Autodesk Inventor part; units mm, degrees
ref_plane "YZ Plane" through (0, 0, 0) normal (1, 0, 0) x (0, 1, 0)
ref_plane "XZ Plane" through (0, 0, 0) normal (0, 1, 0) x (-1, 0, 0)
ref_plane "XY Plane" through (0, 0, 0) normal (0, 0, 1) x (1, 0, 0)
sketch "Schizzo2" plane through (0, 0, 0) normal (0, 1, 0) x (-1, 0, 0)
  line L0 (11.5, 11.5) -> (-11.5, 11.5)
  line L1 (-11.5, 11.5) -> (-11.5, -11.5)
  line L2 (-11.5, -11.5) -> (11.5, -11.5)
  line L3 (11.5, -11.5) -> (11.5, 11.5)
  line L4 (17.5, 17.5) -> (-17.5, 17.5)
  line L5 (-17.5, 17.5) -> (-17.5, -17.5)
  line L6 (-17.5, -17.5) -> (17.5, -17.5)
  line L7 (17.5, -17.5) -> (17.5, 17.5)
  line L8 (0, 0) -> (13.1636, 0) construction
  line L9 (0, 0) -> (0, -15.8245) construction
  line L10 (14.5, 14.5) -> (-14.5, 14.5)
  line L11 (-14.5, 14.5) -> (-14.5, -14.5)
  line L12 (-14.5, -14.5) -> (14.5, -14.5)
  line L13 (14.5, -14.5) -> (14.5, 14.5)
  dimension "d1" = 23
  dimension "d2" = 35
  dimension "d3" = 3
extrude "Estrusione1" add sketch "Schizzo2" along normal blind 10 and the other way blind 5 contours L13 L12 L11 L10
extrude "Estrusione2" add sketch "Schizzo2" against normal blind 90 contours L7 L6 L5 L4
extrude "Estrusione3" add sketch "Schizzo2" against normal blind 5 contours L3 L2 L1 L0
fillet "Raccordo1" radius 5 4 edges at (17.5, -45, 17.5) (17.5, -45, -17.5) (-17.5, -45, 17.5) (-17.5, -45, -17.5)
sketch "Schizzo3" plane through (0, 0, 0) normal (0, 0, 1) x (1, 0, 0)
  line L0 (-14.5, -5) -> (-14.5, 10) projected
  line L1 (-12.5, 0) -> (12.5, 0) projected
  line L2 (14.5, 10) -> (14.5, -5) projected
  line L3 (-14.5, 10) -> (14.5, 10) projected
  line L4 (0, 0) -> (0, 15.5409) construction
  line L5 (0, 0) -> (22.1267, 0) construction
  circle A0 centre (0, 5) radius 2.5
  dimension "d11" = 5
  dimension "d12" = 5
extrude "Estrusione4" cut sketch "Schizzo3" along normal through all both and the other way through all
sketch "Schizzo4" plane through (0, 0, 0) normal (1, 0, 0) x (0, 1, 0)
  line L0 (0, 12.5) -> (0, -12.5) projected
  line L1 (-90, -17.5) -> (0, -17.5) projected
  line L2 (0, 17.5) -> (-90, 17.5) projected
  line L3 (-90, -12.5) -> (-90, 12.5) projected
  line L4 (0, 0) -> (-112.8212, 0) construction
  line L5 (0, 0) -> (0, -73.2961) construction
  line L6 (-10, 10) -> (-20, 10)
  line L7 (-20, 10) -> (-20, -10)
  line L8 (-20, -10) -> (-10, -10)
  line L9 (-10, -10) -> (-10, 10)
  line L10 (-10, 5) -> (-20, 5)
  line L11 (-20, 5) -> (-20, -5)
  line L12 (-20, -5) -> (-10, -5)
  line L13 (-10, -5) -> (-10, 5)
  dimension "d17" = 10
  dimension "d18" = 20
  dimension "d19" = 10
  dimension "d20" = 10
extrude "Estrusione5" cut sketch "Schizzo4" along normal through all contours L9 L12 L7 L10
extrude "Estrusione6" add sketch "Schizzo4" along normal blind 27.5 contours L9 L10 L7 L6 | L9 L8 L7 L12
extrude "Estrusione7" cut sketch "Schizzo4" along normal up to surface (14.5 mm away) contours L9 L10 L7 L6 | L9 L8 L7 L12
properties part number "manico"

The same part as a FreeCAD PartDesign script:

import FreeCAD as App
import Part
import Sketcher
from FreeCAD import Vector


def edges_at(feature, points):
    """Names of the edges that pass closest to the given points."""
    edges = feature.Shape.Edges
    near = lambda p: min(range(len(edges)), key=lambda i: edges[i].distToShape(Part.Vertex(*p))[0])
    return sorted({f"Edge{near(p) + 1}" for p in points})

doc = App.newDocument("Part")
body = doc.addObject("PartDesign::Body", "Body")

sketch1 = body.newObject("Sketcher::SketchObject", "Sketch")
sketch1.AttachmentSupport = (doc.getObject("XZ_Plane"), [""])
sketch1.MapMode = "FlatFace"
sketch1.addGeometry([
    Part.LineSegment(Vector(-14, -14, 0), Vector(-14, 14, 0)),
    Part.LineSegment(Vector(-14, 14, 0), Vector(14, 14, 0)),
    Part.LineSegment(Vector(14, 14, 0), Vector(14, -14, 0)),
    Part.LineSegment(Vector(14, -14, 0), Vector(-14, -14, 0)),
    Part.LineSegment(Vector(12, 12, 0), Vector(-12, 12, 0)),
    Part.LineSegment(Vector(-12, 12, 0), Vector(-12, -12, 0)),
    Part.LineSegment(Vector(-12, -12, 0), Vector(12, -12, 0)),
    Part.LineSegment(Vector(12, -12, 0), Vector(12, 12, 0)),
], False)
sketch1.addConstraint([
    Sketcher.Constraint("Coincident", 0, 2, 1, 1),
    Sketcher.Constraint("Coincident", 1, 2, 2, 1),
    Sketcher.Constraint("Coincident", 2, 2, 3, 1),
    Sketcher.Constraint("Coincident", 3, 2, 0, 1),
    Sketcher.Constraint("Coincident", 4, 2, 5, 1),
    Sketcher.Constraint("Coincident", 5, 2, 6, 1),
    Sketcher.Constraint("Coincident", 6, 2, 7, 1),
    Sketcher.Constraint("Coincident", 7, 2, 4, 1),
    Sketcher.Constraint("Vertical", 0),
    Sketcher.Constraint("Horizontal", 1),
    Sketcher.Constraint("Vertical", 2),
    Sketcher.Constraint("Horizontal", 3),
    Sketcher.Constraint("Horizontal", 4),
    Sketcher.Constraint("Vertical", 5),
    Sketcher.Constraint("Horizontal", 6),
    Sketcher.Constraint("Vertical", 7),
    Sketcher.Constraint("Symmetric", 0, 2, 2, 2, -1, 1),
    Sketcher.Constraint("Symmetric", 4, 2, 6, 2, -1, 1),
    Sketcher.Constraint("Equal", 3, 0),
    Sketcher.Constraint("Equal", 6, 5),
    Sketcher.Constraint("DistanceX", 4, 2, 4, 1, 23.0),
    Sketcher.Constraint("DistanceX", 0, 2, 4, 2, 3.0),
])
pad1 = body.newObject("PartDesign::Pad", "Pad")
pad1.Profile = sketch1
pad1.Type = "TwoLengths"
pad1.Length = 10
pad1.Length2 = 5
pad1.Reversed = True

sketch2 = body.newObject("Sketcher::SketchObject", "Sketch001")
sketch2.AttachmentSupport = (doc.getObject("XZ_Plane"), [""])
sketch2.MapMode = "FlatFace"
sketch2.addGeometry([
    Part.LineSegment(Vector(-18, -18, 0), Vector(-18, 18, 0)),
    Part.LineSegment(Vector(-18, 18, 0), Vector(18, 18, 0)),
    Part.LineSegment(Vector(18, 18, 0), Vector(18, -18, 0)),
    Part.LineSegment(Vector(18, -18, 0), Vector(-18, -18, 0)),
    Part.LineSegment(Vector(14, 14, 0), Vector(-14, 14, 0)),
    Part.LineSegment(Vector(-14, 14, 0), Vector(-14, -14, 0)),
    Part.LineSegment(Vector(-14, -14, 0), Vector(14, -14, 0)),
    Part.LineSegment(Vector(14, -14, 0), Vector(14, 14, 0)),
], False)
sketch2.addConstraint([
    Sketcher.Constraint("Coincident", 0, 2, 1, 1),
    Sketcher.Constraint("Coincident", 1, 2, 2, 1),
    Sketcher.Constraint("Coincident", 2, 2, 3, 1),
    Sketcher.Constraint("Coincident", 3, 2, 0, 1),
    Sketcher.Constraint("Coincident", 4, 2, 5, 1),
    Sketcher.Constraint("Coincident", 5, 2, 6, 1),
    Sketcher.Constraint("Coincident", 6, 2, 7, 1),
    Sketcher.Constraint("Coincident", 7, 2, 4, 1),
    Sketcher.Constraint("Vertical", 0),
    Sketcher.Constraint("Horizontal", 1),
    Sketcher.Constraint("Vertical", 2),
    Sketcher.Constraint("Horizontal", 3),
    Sketcher.Constraint("Horizontal", 4),
    Sketcher.Constraint("Vertical", 5),
    Sketcher.Constraint("Horizontal", 6),
    Sketcher.Constraint("Vertical", 7),
    Sketcher.Constraint("Symmetric", 0, 2, 2, 2, -1, 1),
    Sketcher.Constraint("Symmetric", 4, 2, 6, 2, -1, 1),
    Sketcher.Constraint("Equal", 3, 0),
    Sketcher.Constraint("Equal", 6, 5),
    Sketcher.Constraint("DistanceX", 1, 1, 1, 2, 35.0),
    Sketcher.Constraint("DistanceX", 0, 2, 4, 2, 3.0),
])
pad2 = body.newObject("PartDesign::Pad", "Pad001")
pad2.Profile = sketch2
pad2.Length = 90

sketch3 = body.newObject("Sketcher::SketchObject", "Sketch002")
sketch3.AttachmentSupport = (doc.getObject("XZ_Plane"), [""])
sketch3.MapMode = "FlatFace"
sketch3.addGeometry([
    Part.LineSegment(Vector(-12, -12, 0), Vector(-12, 12, 0)),
    Part.LineSegment(Vector(-12, 12, 0), Vector(12, 12, 0)),
    Part.LineSegment(Vector(12, 12, 0), Vector(12, -12, 0)),
    Part.LineSegment(Vector(12, -12, 0), Vector(-12, -12, 0)),
], False)
sketch3.addConstraint([
    Sketcher.Constraint("Coincident", 0, 2, 1, 1),
    Sketcher.Constraint("Coincident", 1, 2, 2, 1),
    Sketcher.Constraint("Coincident", 2, 2, 3, 1),
    Sketcher.Constraint("Coincident", 3, 2, 0, 1),
    Sketcher.Constraint("Vertical", 0),
    Sketcher.Constraint("Horizontal", 1),
    Sketcher.Constraint("Vertical", 2),
    Sketcher.Constraint("Horizontal", 3),
    Sketcher.Constraint("Symmetric", 0, 2, 2, 2, -1, 1),
    Sketcher.Constraint("Equal", 3, 0),
    Sketcher.Constraint("DistanceX", 1, 1, 1, 2, 23.0),
])
pad3 = body.newObject("PartDesign::Pad", "Pad002")
pad3.Profile = sketch3
pad3.Length = 5
doc.recompute()

fillet = body.newObject("PartDesign::Fillet", "Fillet")
fillet.Base = (pad3, edges_at(pad3, [
    (17.5, -45, 17.5),
    (17.5, -45, -17.5),
    (-17.5, -45, 17.5),
    (-17.5, -45, -17.5),
]))
fillet.Radius = 5

sketch4 = body.newObject("Sketcher::SketchObject", "Sketch003")
sketch4.AttachmentSupport = (doc.getObject("XY_Plane"), [""])
sketch4.MapMode = "FlatFace"
sketch4.addGeometry(Part.Circle(Vector(0, 5, 0), Vector(0, 0, 1), 2.5), False)
sketch4.addConstraint([
    Sketcher.Constraint("PointOnObject", 0, 3, -2),
    Sketcher.Constraint("Diameter", 0, 5.0),
    Sketcher.Constraint("DistanceY", -1, 1, 0, 3, 5.0),
])
pocket1 = body.newObject("PartDesign::Pocket", "Pocket")
pocket1.Profile = sketch4
pocket1.Type = "ThroughAll"
pocket1.Midplane = True

sketch5 = body.newObject("Sketcher::SketchObject", "Sketch004")
sketch5.AttachmentSupport = (doc.getObject("YZ_Plane"), [""])
sketch5.MapMode = "FlatFace"
sketch5.addGeometry([
    Part.LineSegment(Vector(-10, -5, 0), Vector(-10, 5, 0)),
    Part.LineSegment(Vector(-10, 5, 0), Vector(-20, 5, 0)),
    Part.LineSegment(Vector(-20, 5, 0), Vector(-20, -5, 0)),
    Part.LineSegment(Vector(-20, -5, 0), Vector(-10, -5, 0)),
], False)
sketch5.addConstraint([
    Sketcher.Constraint("Coincident", 0, 2, 1, 1),
    Sketcher.Constraint("Coincident", 1, 2, 2, 1),
    Sketcher.Constraint("Coincident", 2, 2, 3, 1),
    Sketcher.Constraint("Coincident", 3, 2, 0, 1),
    Sketcher.Constraint("Vertical", 0),
    Sketcher.Constraint("Horizontal", 1),
    Sketcher.Constraint("Vertical", 2),
    Sketcher.Constraint("Horizontal", 3),
    Sketcher.Constraint("Equal", 3, 0),
    Sketcher.Constraint("DistanceX", 1, 2, 1, 1, 10.0),
    Sketcher.Constraint("DistanceX", 0, 2, -1, 1, 10.0),
    Sketcher.Constraint("DistanceY", -1, 1, 0, 2, 5.0),
])
pocket2 = body.newObject("PartDesign::Pocket", "Pocket001")
pocket2.Profile = sketch5
pocket2.Type = "ThroughAll"
pocket2.Reversed = True

sketch6 = body.newObject("Sketcher::SketchObject", "Sketch005")
sketch6.AttachmentSupport = (doc.getObject("YZ_Plane"), [""])
sketch6.MapMode = "FlatFace"
sketch6.addGeometry([
    Part.LineSegment(Vector(-10, 5, 0), Vector(-10, 10, 0)),
    Part.LineSegment(Vector(-10, 10, 0), Vector(-20, 10, 0)),
    Part.LineSegment(Vector(-20, 10, 0), Vector(-20, 5, 0)),
    Part.LineSegment(Vector(-20, 5, 0), Vector(-10, 5, 0)),
    Part.LineSegment(Vector(-10, -10, 0), Vector(-10, -5, 0)),
    Part.LineSegment(Vector(-10, -5, 0), Vector(-20, -5, 0)),
    Part.LineSegment(Vector(-20, -5, 0), Vector(-20, -10, 0)),
    Part.LineSegment(Vector(-20, -10, 0), Vector(-10, -10, 0)),
], False)
sketch6.addConstraint([
    Sketcher.Constraint("Coincident", 0, 2, 1, 1),
    Sketcher.Constraint("Coincident", 1, 2, 2, 1),
    Sketcher.Constraint("Coincident", 2, 2, 3, 1),
    Sketcher.Constraint("Coincident", 3, 2, 0, 1),
    Sketcher.Constraint("Coincident", 4, 2, 5, 1),
    Sketcher.Constraint("Coincident", 5, 2, 6, 1),
    Sketcher.Constraint("Coincident", 6, 2, 7, 1),
    Sketcher.Constraint("Coincident", 7, 2, 4, 1),
    Sketcher.Constraint("Vertical", 0),
    Sketcher.Constraint("Horizontal", 1),
    Sketcher.Constraint("Vertical", 2),
    Sketcher.Constraint("Horizontal", 3),
    Sketcher.Constraint("Vertical", 4),
    Sketcher.Constraint("Horizontal", 5),
    Sketcher.Constraint("Vertical", 6),
    Sketcher.Constraint("Horizontal", 7),
    Sketcher.Constraint("Symmetric", 3, 2, 4, 2, -1),
    Sketcher.Constraint("Symmetric", 1, 2, 6, 2, -1),
    Sketcher.Constraint("DistanceX", 1, 2, 1, 1, 10.0),
    Sketcher.Constraint("DistanceX", 0, 2, -1, 1, 10.0),
    Sketcher.Constraint("DistanceY", -1, 1, 0, 2, 10.0),
    Sketcher.Constraint("DistanceY", 4, 2, 3, 2, 10.0),
])
pad4 = body.newObject("PartDesign::Pad", "Pad003")
pad4.Profile = sketch6
pad4.Length = 27.5

sketch7 = body.newObject("Sketcher::SketchObject", "Sketch006")
sketch7.AttachmentSupport = (doc.getObject("YZ_Plane"), [""])
sketch7.MapMode = "FlatFace"
sketch7.addGeometry([
    Part.LineSegment(Vector(-10, 5, 0), Vector(-10, 10, 0)),
    Part.LineSegment(Vector(-10, 10, 0), Vector(-20, 10, 0)),
    Part.LineSegment(Vector(-20, 10, 0), Vector(-20, 5, 0)),
    Part.LineSegment(Vector(-20, 5, 0), Vector(-10, 5, 0)),
    Part.LineSegment(Vector(-10, -10, 0), Vector(-10, -5, 0)),
    Part.LineSegment(Vector(-10, -5, 0), Vector(-20, -5, 0)),
    Part.LineSegment(Vector(-20, -5, 0), Vector(-20, -10, 0)),
    Part.LineSegment(Vector(-20, -10, 0), Vector(-10, -10, 0)),
], False)
sketch7.addConstraint([
    Sketcher.Constraint("Coincident", 0, 2, 1, 1),
    Sketcher.Constraint("Coincident", 1, 2, 2, 1),
    Sketcher.Constraint("Coincident", 2, 2, 3, 1),
    Sketcher.Constraint("Coincident", 3, 2, 0, 1),
    Sketcher.Constraint("Coincident", 4, 2, 5, 1),
    Sketcher.Constraint("Coincident", 5, 2, 6, 1),
    Sketcher.Constraint("Coincident", 6, 2, 7, 1),
    Sketcher.Constraint("Coincident", 7, 2, 4, 1),
    Sketcher.Constraint("Vertical", 0),
    Sketcher.Constraint("Horizontal", 1),
    Sketcher.Constraint("Vertical", 2),
    Sketcher.Constraint("Horizontal", 3),
    Sketcher.Constraint("Vertical", 4),
    Sketcher.Constraint("Horizontal", 5),
    Sketcher.Constraint("Vertical", 6),
    Sketcher.Constraint("Horizontal", 7),
    Sketcher.Constraint("Symmetric", 3, 2, 4, 2, -1),
    Sketcher.Constraint("Symmetric", 1, 2, 6, 2, -1),
    Sketcher.Constraint("DistanceX", 1, 2, 1, 1, 10.0),
    Sketcher.Constraint("DistanceX", 0, 2, -1, 1, 10.0),
    Sketcher.Constraint("DistanceY", -1, 1, 0, 2, 10.0),
    Sketcher.Constraint("DistanceY", 4, 2, 3, 2, 10.0),
])
pocket3 = body.newObject("PartDesign::Pocket", "Pocket002")
pocket3.Profile = sketch7
pocket3.Length = 14.5
pocket3.Reversed = True

doc.recompute()
